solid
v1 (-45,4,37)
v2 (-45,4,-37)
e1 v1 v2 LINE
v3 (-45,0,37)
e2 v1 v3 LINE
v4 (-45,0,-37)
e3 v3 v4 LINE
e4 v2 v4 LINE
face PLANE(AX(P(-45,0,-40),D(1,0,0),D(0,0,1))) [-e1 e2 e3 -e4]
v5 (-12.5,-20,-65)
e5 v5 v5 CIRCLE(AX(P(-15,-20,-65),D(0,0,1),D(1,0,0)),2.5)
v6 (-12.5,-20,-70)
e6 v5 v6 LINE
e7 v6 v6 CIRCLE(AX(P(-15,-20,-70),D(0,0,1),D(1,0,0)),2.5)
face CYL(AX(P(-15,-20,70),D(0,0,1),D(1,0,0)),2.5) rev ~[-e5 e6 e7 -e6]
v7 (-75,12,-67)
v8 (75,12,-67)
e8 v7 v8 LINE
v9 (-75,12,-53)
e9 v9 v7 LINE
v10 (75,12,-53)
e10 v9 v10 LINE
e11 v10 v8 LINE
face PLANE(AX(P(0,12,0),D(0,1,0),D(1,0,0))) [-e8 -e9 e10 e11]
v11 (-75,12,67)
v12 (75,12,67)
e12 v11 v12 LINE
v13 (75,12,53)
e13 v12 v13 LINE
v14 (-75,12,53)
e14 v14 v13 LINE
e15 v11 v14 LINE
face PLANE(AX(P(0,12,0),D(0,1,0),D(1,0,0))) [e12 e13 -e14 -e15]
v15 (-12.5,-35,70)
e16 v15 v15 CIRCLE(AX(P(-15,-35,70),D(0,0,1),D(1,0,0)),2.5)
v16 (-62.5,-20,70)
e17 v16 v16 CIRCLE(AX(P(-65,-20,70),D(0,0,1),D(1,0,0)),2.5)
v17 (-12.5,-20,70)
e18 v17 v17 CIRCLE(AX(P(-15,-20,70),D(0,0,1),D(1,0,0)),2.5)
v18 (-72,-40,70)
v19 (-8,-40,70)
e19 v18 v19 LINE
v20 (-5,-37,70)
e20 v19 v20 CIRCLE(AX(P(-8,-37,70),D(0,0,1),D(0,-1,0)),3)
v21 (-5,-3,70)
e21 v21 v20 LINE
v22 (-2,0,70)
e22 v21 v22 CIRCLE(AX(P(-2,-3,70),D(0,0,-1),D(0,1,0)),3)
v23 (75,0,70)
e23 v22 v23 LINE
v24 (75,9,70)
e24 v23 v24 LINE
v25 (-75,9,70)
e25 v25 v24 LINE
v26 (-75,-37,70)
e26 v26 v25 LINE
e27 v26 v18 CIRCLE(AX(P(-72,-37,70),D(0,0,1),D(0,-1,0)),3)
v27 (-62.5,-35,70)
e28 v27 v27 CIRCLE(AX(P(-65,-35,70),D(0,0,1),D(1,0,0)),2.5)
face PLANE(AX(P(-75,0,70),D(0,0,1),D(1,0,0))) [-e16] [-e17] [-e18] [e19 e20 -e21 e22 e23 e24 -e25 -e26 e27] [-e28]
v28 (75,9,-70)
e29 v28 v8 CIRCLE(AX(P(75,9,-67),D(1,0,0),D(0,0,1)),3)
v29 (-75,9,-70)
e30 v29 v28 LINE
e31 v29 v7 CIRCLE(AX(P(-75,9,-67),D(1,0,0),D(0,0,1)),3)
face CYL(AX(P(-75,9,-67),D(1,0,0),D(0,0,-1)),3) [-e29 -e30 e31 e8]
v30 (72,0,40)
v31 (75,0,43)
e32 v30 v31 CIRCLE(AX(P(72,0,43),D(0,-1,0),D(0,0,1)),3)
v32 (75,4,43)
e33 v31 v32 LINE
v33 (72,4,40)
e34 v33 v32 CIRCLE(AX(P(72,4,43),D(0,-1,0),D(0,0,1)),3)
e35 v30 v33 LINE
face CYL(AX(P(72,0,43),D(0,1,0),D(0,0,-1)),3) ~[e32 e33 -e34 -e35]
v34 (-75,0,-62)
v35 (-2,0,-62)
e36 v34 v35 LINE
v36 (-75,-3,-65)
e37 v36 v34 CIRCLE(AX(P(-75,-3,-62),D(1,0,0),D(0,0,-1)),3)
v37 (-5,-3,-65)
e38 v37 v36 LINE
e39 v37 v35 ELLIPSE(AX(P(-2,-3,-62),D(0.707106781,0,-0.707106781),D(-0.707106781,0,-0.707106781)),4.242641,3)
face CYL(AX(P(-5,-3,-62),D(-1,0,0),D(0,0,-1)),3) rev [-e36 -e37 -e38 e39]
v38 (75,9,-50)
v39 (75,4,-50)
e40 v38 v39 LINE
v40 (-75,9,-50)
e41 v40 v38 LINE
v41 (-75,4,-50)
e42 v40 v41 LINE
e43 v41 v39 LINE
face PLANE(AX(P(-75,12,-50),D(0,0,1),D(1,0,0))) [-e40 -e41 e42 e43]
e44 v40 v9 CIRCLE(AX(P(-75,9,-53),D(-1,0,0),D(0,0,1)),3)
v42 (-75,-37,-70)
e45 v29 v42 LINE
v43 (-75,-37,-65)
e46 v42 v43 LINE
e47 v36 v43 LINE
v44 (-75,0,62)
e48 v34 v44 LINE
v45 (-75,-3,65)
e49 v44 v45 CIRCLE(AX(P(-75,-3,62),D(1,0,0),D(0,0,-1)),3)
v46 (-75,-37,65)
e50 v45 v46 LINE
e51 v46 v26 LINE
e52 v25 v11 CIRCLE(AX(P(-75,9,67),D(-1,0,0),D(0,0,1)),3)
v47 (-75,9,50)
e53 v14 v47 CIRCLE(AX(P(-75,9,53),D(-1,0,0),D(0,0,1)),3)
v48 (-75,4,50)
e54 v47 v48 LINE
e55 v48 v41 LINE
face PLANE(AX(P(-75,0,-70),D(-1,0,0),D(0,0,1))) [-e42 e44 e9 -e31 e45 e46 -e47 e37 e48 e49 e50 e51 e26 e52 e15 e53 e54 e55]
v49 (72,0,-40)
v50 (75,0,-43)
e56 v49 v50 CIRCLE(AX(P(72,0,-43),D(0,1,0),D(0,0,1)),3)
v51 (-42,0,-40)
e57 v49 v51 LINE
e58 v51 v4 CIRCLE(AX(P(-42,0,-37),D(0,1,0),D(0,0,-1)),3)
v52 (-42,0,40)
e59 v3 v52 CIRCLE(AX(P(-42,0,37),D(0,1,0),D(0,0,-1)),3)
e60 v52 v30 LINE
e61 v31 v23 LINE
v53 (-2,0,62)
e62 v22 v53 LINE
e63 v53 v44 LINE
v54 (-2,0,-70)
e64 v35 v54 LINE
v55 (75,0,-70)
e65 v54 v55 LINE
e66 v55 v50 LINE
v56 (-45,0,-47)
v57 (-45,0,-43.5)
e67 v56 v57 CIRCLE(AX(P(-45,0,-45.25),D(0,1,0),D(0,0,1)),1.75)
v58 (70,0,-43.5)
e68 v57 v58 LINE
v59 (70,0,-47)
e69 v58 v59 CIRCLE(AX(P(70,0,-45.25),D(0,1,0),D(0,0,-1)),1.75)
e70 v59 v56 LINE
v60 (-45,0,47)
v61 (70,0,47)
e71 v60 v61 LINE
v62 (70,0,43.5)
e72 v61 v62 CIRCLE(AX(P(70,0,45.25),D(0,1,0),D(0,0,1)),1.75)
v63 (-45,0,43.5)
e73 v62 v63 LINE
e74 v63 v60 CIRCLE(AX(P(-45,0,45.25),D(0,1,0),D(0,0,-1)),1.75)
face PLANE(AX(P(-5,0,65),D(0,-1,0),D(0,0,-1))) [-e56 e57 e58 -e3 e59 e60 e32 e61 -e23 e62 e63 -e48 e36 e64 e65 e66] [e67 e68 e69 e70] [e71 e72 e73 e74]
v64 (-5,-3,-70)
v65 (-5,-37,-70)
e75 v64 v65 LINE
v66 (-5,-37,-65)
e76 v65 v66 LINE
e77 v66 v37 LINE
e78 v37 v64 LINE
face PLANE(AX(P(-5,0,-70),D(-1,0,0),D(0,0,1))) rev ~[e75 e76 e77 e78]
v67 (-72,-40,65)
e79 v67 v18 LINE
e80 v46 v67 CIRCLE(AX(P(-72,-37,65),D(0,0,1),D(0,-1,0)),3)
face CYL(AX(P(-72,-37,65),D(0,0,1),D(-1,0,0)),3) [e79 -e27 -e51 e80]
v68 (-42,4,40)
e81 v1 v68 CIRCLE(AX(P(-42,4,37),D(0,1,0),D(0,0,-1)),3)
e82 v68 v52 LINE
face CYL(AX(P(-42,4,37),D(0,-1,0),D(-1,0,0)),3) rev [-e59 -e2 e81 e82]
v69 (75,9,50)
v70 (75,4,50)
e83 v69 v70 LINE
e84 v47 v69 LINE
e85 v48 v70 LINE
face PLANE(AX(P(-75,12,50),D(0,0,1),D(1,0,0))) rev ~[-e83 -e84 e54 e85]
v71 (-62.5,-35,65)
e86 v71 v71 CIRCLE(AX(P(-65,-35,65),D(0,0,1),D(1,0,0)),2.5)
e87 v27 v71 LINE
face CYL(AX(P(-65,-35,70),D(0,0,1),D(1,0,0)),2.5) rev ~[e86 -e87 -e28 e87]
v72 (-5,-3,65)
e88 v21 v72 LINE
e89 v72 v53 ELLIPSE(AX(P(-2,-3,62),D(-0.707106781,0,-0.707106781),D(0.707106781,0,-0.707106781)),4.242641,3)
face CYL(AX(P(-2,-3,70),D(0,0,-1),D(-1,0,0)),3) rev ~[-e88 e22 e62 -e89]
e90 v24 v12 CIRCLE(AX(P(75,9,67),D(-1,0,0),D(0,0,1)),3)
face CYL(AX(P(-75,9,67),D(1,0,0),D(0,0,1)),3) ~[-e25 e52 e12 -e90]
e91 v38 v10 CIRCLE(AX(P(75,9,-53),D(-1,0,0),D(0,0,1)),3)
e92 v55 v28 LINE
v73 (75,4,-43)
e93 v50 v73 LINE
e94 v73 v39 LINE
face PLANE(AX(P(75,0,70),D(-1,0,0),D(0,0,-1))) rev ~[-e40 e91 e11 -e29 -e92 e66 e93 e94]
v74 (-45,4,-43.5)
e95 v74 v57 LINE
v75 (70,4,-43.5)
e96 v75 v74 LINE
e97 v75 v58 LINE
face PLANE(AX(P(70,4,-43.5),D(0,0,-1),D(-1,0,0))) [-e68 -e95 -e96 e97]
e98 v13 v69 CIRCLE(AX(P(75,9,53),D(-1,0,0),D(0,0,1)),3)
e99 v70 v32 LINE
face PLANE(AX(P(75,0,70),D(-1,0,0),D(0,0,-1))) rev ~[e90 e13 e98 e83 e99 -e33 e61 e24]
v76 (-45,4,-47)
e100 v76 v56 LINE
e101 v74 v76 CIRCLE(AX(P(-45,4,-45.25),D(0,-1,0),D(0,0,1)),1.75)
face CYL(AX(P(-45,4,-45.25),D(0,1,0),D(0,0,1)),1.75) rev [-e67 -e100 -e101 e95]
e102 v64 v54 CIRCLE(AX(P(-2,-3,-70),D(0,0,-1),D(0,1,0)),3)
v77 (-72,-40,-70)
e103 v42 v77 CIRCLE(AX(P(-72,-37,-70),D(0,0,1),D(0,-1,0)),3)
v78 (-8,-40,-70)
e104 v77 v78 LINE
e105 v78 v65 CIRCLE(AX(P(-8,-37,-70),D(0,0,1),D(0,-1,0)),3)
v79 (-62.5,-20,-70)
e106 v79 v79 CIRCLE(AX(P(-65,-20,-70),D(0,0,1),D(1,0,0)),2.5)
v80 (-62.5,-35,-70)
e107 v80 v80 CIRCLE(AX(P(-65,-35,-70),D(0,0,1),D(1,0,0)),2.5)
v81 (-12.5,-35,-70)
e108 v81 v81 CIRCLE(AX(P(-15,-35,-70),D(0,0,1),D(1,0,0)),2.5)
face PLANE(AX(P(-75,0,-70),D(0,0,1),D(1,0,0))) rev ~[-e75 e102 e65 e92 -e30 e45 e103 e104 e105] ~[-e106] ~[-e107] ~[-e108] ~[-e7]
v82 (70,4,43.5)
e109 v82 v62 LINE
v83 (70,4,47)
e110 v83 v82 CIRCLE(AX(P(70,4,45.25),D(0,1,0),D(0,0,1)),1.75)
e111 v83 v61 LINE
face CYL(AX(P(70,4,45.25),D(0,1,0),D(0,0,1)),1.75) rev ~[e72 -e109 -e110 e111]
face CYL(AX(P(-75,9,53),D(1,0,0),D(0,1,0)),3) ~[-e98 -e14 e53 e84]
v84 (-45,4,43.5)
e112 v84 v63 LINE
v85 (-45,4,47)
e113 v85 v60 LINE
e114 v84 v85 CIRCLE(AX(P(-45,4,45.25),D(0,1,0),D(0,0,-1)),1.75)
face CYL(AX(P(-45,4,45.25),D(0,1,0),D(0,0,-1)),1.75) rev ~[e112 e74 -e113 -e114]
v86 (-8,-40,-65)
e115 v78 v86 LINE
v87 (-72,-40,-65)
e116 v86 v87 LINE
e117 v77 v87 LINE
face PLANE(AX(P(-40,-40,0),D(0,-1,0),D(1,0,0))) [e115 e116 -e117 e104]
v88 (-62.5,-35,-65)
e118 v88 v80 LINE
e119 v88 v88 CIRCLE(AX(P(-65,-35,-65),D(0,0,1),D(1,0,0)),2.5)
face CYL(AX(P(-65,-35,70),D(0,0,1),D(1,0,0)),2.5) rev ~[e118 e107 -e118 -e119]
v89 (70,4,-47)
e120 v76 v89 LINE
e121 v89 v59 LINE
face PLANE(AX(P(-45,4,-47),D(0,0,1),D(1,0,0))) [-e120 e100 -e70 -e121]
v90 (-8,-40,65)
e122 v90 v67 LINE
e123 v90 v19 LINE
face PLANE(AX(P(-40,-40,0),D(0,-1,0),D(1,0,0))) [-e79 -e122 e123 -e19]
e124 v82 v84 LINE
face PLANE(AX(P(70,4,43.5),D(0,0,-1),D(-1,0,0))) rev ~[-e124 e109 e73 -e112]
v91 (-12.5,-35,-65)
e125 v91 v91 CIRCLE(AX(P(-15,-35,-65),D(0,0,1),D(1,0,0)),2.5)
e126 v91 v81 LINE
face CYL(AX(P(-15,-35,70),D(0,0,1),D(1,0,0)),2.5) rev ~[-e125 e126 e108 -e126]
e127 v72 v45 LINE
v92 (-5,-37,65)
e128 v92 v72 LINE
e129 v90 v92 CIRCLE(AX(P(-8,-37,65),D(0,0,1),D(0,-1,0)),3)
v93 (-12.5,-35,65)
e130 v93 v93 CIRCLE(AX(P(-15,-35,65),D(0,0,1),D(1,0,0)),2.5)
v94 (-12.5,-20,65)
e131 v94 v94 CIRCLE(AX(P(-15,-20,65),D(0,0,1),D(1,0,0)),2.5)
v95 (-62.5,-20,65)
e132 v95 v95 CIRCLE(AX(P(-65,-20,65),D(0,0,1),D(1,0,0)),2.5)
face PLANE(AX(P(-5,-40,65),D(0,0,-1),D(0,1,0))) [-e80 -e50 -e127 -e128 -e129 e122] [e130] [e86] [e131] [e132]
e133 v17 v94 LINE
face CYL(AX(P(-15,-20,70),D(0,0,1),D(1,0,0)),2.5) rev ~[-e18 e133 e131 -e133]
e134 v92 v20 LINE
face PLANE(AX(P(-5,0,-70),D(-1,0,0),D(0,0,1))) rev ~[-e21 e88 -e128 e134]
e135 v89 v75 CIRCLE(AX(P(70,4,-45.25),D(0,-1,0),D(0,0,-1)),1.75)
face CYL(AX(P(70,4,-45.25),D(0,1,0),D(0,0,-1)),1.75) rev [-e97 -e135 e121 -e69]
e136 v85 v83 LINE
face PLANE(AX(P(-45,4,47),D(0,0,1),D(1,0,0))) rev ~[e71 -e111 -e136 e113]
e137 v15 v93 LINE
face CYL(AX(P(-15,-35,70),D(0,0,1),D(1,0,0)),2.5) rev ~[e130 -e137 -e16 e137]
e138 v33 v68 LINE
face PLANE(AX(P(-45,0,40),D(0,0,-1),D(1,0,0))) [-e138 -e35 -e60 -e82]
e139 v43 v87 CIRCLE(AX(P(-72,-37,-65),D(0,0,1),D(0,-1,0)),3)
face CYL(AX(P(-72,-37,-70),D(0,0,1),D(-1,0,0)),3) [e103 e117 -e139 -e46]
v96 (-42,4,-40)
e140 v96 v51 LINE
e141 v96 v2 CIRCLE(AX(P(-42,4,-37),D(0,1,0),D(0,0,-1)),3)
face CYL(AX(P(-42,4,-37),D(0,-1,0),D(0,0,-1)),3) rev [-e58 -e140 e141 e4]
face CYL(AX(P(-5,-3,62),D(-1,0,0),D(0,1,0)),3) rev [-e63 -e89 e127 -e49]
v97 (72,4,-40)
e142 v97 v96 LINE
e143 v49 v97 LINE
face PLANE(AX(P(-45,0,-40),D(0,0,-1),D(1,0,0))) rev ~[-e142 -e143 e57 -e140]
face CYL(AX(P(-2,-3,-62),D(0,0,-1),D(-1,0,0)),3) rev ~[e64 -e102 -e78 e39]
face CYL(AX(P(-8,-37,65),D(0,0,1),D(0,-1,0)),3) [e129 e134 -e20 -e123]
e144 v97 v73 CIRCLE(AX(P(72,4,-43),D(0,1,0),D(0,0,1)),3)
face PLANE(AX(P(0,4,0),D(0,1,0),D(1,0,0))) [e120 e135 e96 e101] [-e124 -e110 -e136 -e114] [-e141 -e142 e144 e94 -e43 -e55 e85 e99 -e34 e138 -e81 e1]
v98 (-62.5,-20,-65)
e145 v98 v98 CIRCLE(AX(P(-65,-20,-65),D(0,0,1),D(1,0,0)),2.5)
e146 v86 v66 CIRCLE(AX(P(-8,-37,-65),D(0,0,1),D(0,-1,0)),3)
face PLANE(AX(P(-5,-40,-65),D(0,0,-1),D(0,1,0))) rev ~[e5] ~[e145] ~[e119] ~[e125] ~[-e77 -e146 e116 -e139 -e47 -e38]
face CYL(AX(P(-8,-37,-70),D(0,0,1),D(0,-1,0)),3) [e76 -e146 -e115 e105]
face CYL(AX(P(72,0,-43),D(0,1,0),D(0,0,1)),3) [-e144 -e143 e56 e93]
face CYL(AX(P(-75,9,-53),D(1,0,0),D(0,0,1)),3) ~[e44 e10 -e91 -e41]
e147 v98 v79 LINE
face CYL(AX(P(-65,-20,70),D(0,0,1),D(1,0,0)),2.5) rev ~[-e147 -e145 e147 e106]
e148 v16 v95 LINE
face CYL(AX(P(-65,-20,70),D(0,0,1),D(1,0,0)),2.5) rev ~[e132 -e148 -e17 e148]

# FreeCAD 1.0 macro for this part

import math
import FreeCAD as App
import Part
import Sketcher
from FreeCAD import Vector
Q = App.Units.Quantity


def edges_at(feature, points):
    """Names of the edges that pass closest to the given points."""
    edges = feature.Shape.Edges
    near = lambda p: min(range(len(edges)), key=lambda i: edges[i].distToShape(Part.Vertex(*p))[0])
    return sorted({f"Edge{near(p) + 1}" for p in points})


def add_polygon(sketch, points):
    """Adds a closed chain of lines whose ends are joined by coincident constraints."""
    first, n = sketch.GeometryCount, len(points)
    for a, b in zip(points, points[1:] + points[:1]):
        sketch.addGeometry(Part.LineSegment(App.Vector(*a, 0), App.Vector(*b, 0)), False)
    for i in range(n):
        sketch.addConstraint(Sketcher.Constraint("Coincident", first + i, 2, first + (i + 1) % n, 1))

doc = App.newDocument("Part")
body = doc.addObject("PartDesign::Body", "Body")

# Sketch on XZ plane
sketch1 = body.newObject("Sketcher::SketchObject", "Sketch")
sketch1.AttachmentSupport = (doc.getObject("XZ_Plane"), [""])
sketch1.MapMode = "FlatFace"
add_polygon(sketch1, [(-75, -70), (-75, 70), (75, 70), (75, -70)])  # lines 0-3
sketch1.addConstraint([
    Sketcher.Constraint("Vertical", 0),
    Sketcher.Constraint("Horizontal", 1),
    Sketcher.Constraint("Vertical", 2),
    Sketcher.Constraint("Horizontal", 3),
    Sketcher.Constraint("Symmetric", 0, 2, 2, 2, -1, 1),
    Sketcher.Constraint("DistanceX", 1, 1, 1, 2, Q("150 mm")),
    Sketcher.Constraint("DistanceY", 0, 1, 0, 2, Q("140 mm")),
])
pad1 = body.newObject("PartDesign::Pad", "Pad")
pad1.Profile = sketch1
pad1.Length = 12
pad1.Reversed = True

# Sketch on XZ plane
sketch2 = body.newObject("Sketcher::SketchObject", "Sketch001")
sketch2.AttachmentSupport = (doc.getObject("XZ_Plane"), [""])
sketch2.MapMode = "FlatFace"
add_polygon(sketch2, [(-75, 70), (-75, -70), (-5, -70), (-5, 70)])  # lines 0-3
sketch2.addConstraint([
    Sketcher.Constraint("Vertical", 0),
    Sketcher.Constraint("Horizontal", 1),
    Sketcher.Constraint("Vertical", 2),
    Sketcher.Constraint("Horizontal", 3),
    Sketcher.Constraint("DistanceX", 1, 1, 1, 2, Q("70 mm")),
    Sketcher.Constraint("DistanceY", 0, 2, 0, 1, Q("140 mm")),
    Sketcher.Constraint("DistanceX", 0, 2, -1, 1, Q("75 mm")),
    Sketcher.Constraint("DistanceY", 0, 2, -1, 1, Q("70 mm")),
])
pad2 = body.newObject("PartDesign::Pad", "Pad001")
pad2.Profile = sketch2
pad2.Length = 40

# Sketch on XY plane
sketch3 = body.newObject("Sketcher::SketchObject", "Sketch002")
sketch3.AttachmentSupport = (doc.getObject("XY_Plane"), [""])
sketch3.MapMode = "FlatFace"
sketch3.AttachmentOffset = App.Placement(Vector(0, 0, 70), App.Rotation())
sketch3.addGeometry([
    Part.Circle(Vector(-65, -35, 0), Vector(0, 0, 1), 2.5),
    Part.Circle(Vector(-15, -35, 0), Vector(0, 0, 1), 2.5),
    Part.Circle(Vector(-15, -20, 0), Vector(0, 0, 1), 2.5),
    Part.Circle(Vector(-65, -20, 0), Vector(0, 0, 1), 2.5),
], False)
sketch3.addConstraint([
    Sketcher.Constraint("Equal", 0, 1),
    Sketcher.Constraint("Equal", 1, 2),
    Sketcher.Constraint("Equal", 2, 3),
    Sketcher.Constraint("Horizontal", 0, 3, 1, 3),
    Sketcher.Constraint("Horizontal", 2, 3, 3, 3),
    Sketcher.Constraint("Vertical", 1, 3, 2, 3),
    Sketcher.Constraint("Vertical", 0, 3, 3, 3),
    Sketcher.Constraint("Diameter", 0, Q("5 mm")),
    Sketcher.Constraint("DistanceX", 0, 3, -1, 1, Q("65 mm")),
    Sketcher.Constraint("DistanceY", 0, 3, -1, 1, Q("35 mm")),
    Sketcher.Constraint("DistanceX", 1, 3, -1, 1, Q("15 mm")),
    Sketcher.Constraint("DistanceY", 2, 3, -1, 1, Q("20 mm")),
])
pocket1 = body.newObject("PartDesign::Pocket", "Pocket")
pocket1.Profile = sketch3
pocket1.Type = "ThroughAll"

# Sketch on XZ plane
sketch4 = body.newObject("Sketcher::SketchObject", "Sketch003")
sketch4.AttachmentSupport = (doc.getObject("XZ_Plane"), [""])
sketch4.MapMode = "FlatFace"
sketch4.AttachmentOffset = App.Placement(Vector(0, 0, -12), App.Rotation())
add_polygon(sketch4, [(-75, -50), (-75, 50), (75, 50), (75, -50)])  # lines 0-3
sketch4.addConstraint([
    Sketcher.Constraint("Vertical", 0),
    Sketcher.Constraint("Horizontal", 1),
    Sketcher.Constraint("Vertical", 2),
    Sketcher.Constraint("Horizontal", 3),
    Sketcher.Constraint("Symmetric", 0, 2, 2, 2, -1, 1),
    Sketcher.Constraint("DistanceX", 1, 1, 1, 2, Q("150 mm")),
    Sketcher.Constraint("DistanceY", 0, 1, 0, 2, Q("100 mm")),
])
pocket2 = body.newObject("PartDesign::Pocket", "Pocket001")
pocket2.Profile = sketch4
pocket2.Length = 8
pocket2.Reversed = True

# Sketch on XZ plane
sketch5 = body.newObject("Sketcher::SketchObject", "Sketch004")
sketch5.AttachmentSupport = (doc.getObject("XZ_Plane"), [""])
sketch5.MapMode = "FlatFace"
add_polygon(sketch5, [(-45, 40), (-45, -40), (75, -40), (75, 40)])  # lines 0-3
sketch5.addConstraint([
    Sketcher.Constraint("Vertical", 0),
    Sketcher.Constraint("Horizontal", 1),
    Sketcher.Constraint("Vertical", 2),
    Sketcher.Constraint("Horizontal", 3),
    Sketcher.Constraint("DistanceX", 1, 1, 1, 2, Q("120 mm")),
    Sketcher.Constraint("DistanceY", 0, 2, 0, 1, Q("80 mm")),
    Sketcher.Constraint("DistanceX", 0, 2, -1, 1, Q("45 mm")),
    Sketcher.Constraint("DistanceY", 0, 2, -1, 1, Q("40 mm")),
])
pocket3 = body.newObject("PartDesign::Pocket", "Pocket002")
pocket3.Profile = sketch5
pocket3.Type = "ThroughAll"
pocket3.Midplane = True

# Sketch on XZ plane
sketch6 = body.newObject("Sketcher::SketchObject", "Sketch005")
sketch6.AttachmentSupport = (doc.getObject("XZ_Plane"), [""])
sketch6.MapMode = "FlatFace"
sketch6.AttachmentOffset = App.Placement(Vector(0, 0, -4), App.Rotation())
sketch6.addGeometry([
    Part.LineSegment(Vector(70, -47, 0), Vector(-45, -47, 0)),  # 0
    Part.ArcOfCircle(Part.Circle(Vector(-45, -45.2, 0), Vector(0, 0, 1), 1.8), math.radians(90), math.radians(270)),  # 1
    Part.LineSegment(Vector(-45, -43.5, 0), Vector(70, -43.5, 0)),  # 2
    Part.ArcOfCircle(Part.Circle(Vector(70, -45.2, 0), Vector(0, 0, 1), 1.8), math.radians(-90), math.radians(90)),  # 3
    Part.LineSegment(Vector(-45, 47, 0), Vector(70, 47, 0)),  # 4
    Part.ArcOfCircle(Part.Circle(Vector(70, 45.2, 0), Vector(0, 0, 1), 1.8), math.radians(-90), math.radians(90)),  # 5
    Part.LineSegment(Vector(70, 43.5, 0), Vector(-45, 43.5, 0)),  # 6
    Part.ArcOfCircle(Part.Circle(Vector(-45, 45.2, 0), Vector(0, 0, 1), 1.8), math.radians(90), math.radians(270)),  # 7
], False)
sketch6.addConstraint([
    Sketcher.Constraint("Tangent", 0, 2, 1, 2),
    Sketcher.Constraint("Tangent", 1, 1, 2, 1),
    Sketcher.Constraint("Tangent", 2, 2, 3, 2),
    Sketcher.Constraint("Tangent", 3, 1, 0, 1),
    Sketcher.Constraint("Tangent", 4, 2, 5, 2),
    Sketcher.Constraint("Tangent", 5, 1, 6, 1),
    Sketcher.Constraint("Tangent", 6, 2, 7, 2),
    Sketcher.Constraint("Tangent", 7, 1, 4, 1),
    Sketcher.Constraint("Horizontal", 0),
    Sketcher.Constraint("Horizontal", 2),
    Sketcher.Constraint("Horizontal", 4),
    Sketcher.Constraint("Horizontal", 6),
    Sketcher.Constraint("Equal", 3, 5),
    Sketcher.Constraint("Symmetric", 3, 3, 5, 3, -1),
    Sketcher.Constraint("Vertical", 1, 3, 7, 3),
    Sketcher.Constraint("DistanceX", 0, 2, 0, 1, Q("115 mm")),
    Sketcher.Constraint("Radius", 1, Q("1.75 mm")),
    Sketcher.Constraint("DistanceX", 1, 3, -1, 1, Q("45 mm")),
    Sketcher.Constraint("DistanceY", 0, 2, -1, 1, Q("47 mm")),
])
pocket4 = body.newObject("PartDesign::Pocket", "Pocket003")
pocket4.Profile = sketch6
pocket4.Type = "ThroughAll"
pocket4.Reversed = True

# Sketch on YZ plane
sketch7 = body.newObject("Sketcher::SketchObject", "Sketch006")
sketch7.AttachmentSupport = (doc.getObject("YZ_Plane"), [""])
sketch7.MapMode = "FlatFace"
sketch7.AttachmentOffset = App.Placement(Vector(0, 0, -5), App.Rotation())
add_polygon(sketch7, [(0, 65), (-40, 65), (-40, -65), (0, -65)])  # lines 0-3
sketch7.addConstraint([
    Sketcher.Constraint("Horizontal", 0),
    Sketcher.Constraint("Vertical", 1),
    Sketcher.Constraint("Horizontal", 2),
    Sketcher.Constraint("Vertical", 3),
    Sketcher.Constraint("Symmetric", 2, 2, 3, 2, -1, 1),
    Sketcher.Constraint("DistanceX", 0, 2, 0, 1, Q("40 mm")),
    Sketcher.Constraint("DistanceY", 1, 2, 1, 1, Q("130 mm")),
])
pocket5 = body.newObject("PartDesign::Pocket", "Pocket004")
pocket5.Profile = sketch7
pocket5.Type = "ThroughAll"
doc.recompute()

fillet = body.newObject("PartDesign::Fillet", "Fillet")
fillet.Base = (pocket5, edges_at(pocket5, [(-40, 0, -65), (-40, 0, 65)]))
fillet.Radius = 3
doc.recompute()

fillet2 = body.newObject("PartDesign::Fillet", "Fillet001")
fillet2.Base = (fillet, edges_at(fillet, [(-5, 0, -66), (-5, 0, 66)]))
fillet2.Radius = 3
doc.recompute()

fillet3 = body.newObject("PartDesign::Fillet", "Fillet002")
fillet3.Base = (fillet2, edges_at(fillet2, [(0, 12, 70), (0, 12, -70)]))
fillet3.Radius = 3
doc.recompute()

fillet4 = body.newObject("PartDesign::Fillet", "Fillet003")
fillet4.Base = (fillet3, edges_at(fillet3, [(0, 12, -50), (0, 12, 50)]))
fillet4.Radius = 3
doc.recompute()

fillet5 = body.newObject("PartDesign::Fillet", "Fillet004")
fillet5.Base = (fillet4, edges_at(fillet4, [
    (-5, -40, 67.5),
    (-75, -40, -67.5),
    (-75, -40, 67.5),
    (-5, -40, -67.5),
]))
fillet5.Radius = 3
doc.recompute()

fillet6 = body.newObject("PartDesign::Fillet", "Fillet005")
fillet6.Base = (fillet5, edges_at(fillet5, [(-45, 2, 40), (-45, 2, -40)]))
fillet6.Radius = 3
doc.recompute()

fillet7 = body.newObject("PartDesign::Fillet", "Fillet006")
fillet7.Base = (fillet6, edges_at(fillet6, [(75, 2, 40), (75, 2, -40)]))
fillet7.Radius = 3

doc.recompute()
